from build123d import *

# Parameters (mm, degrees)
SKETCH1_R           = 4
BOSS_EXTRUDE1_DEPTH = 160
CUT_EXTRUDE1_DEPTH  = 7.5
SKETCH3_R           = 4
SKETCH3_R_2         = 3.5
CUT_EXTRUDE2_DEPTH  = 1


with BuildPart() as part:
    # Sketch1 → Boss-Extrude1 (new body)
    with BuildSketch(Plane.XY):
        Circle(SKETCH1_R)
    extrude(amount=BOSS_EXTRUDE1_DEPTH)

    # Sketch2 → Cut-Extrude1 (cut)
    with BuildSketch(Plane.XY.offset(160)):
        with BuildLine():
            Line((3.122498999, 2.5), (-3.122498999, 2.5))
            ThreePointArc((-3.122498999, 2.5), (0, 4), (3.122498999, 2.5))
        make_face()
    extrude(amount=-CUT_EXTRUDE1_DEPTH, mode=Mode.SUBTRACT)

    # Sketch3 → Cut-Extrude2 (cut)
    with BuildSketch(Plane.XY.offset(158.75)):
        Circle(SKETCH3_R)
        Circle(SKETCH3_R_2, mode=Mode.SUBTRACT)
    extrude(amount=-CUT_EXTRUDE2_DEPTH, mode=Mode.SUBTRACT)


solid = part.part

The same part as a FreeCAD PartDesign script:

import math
import FreeCAD as App
import Part
import Sketcher
from FreeCAD import Vector

doc = App.newDocument("Part")
body = doc.addObject("PartDesign::Body", "Body")

# Sketch on XY plane
sketch1 = body.newObject("Sketcher::SketchObject", "Sketch")
sketch1.AttachmentSupport = (doc.getObject("XY_Plane"), [""])
sketch1.MapMode = "FlatFace"
sketch1.addGeometry(Part.Circle(Vector(0, 0, 0), Vector(0, 0, 1), 4), False)
sketch1.addConstraint(Sketcher.Constraint("Coincident", 0, 3, -1, 1))
sketch1.addConstraint(Sketcher.Constraint("Diameter", 0, 8.0))
pad1 = body.newObject("PartDesign::Pad", "Pad")
pad1.Profile = sketch1
pad1.Length = 160

# Sketch on XY plane
sketch2 = body.newObject("Sketcher::SketchObject", "Sketch001")
sketch2.AttachmentSupport = (doc.getObject("XY_Plane"), [""])
sketch2.MapMode = "FlatFace"
sketch2.AttachmentOffset = App.Placement(Vector(0, 0, 160), App.Rotation())
sketch2.addGeometry(Part.LineSegment(Vector(-3.1, 2.5, 0), Vector(3.1, 2.5, 0)), False)
sketch2.addGeometry(Part.ArcOfCircle(Part.Circle(Vector(0, 0, 0), Vector(0, 0, 1), 4), math.radians(39), math.radians(141)), False)
sketch2.addConstraint(Sketcher.Constraint("Coincident", 0, 1, 1, 2))
sketch2.addConstraint(Sketcher.Constraint("Coincident", 1, 1, 0, 2))
sketch2.addConstraint(Sketcher.Constraint("Horizontal", 0))
sketch2.addConstraint(Sketcher.Constraint("Coincident", 1, 3, -1, 1))
sketch2.addConstraint(Sketcher.Constraint("Radius", 1, 4.0))
sketch2.addConstraint(Sketcher.Constraint("DistanceY", -1, 1, 0, 1, 2.5))
pocket1 = body.newObject("PartDesign::Pocket", "Pocket")
pocket1.Profile = sketch2
pocket1.Length = 7.5

# Sketch on XY plane
sketch3 = body.newObject("Sketcher::SketchObject", "Sketch002")
sketch3.AttachmentSupport = (doc.getObject("XY_Plane"), [""])
sketch3.MapMode = "FlatFace"
sketch3.AttachmentOffset = App.Placement(Vector(0, 0, 158.75), App.Rotation())
sketch3.addGeometry(Part.Circle(Vector(0, 0, 0), Vector(0, 0, 1), 4), False)
sketch3.addGeometry(Part.Circle(Vector(0, 0, 0), Vector(0, 0, 1), 3.5), False)
sketch3.addConstraint(Sketcher.Constraint("Coincident", 0, 3, -1, 1))
sketch3.addConstraint(Sketcher.Constraint("Coincident", 1, 3, -1, 1))
sketch3.addConstraint(Sketcher.Constraint("Diameter", 0, 8.0))
sketch3.addConstraint(Sketcher.Constraint("Diameter", 1, 7.0))
pocket2 = body.newObject("PartDesign::Pocket", "Pocket001")
pocket2.Profile = sketch3
pocket2.Length = 1

doc.recompute()
